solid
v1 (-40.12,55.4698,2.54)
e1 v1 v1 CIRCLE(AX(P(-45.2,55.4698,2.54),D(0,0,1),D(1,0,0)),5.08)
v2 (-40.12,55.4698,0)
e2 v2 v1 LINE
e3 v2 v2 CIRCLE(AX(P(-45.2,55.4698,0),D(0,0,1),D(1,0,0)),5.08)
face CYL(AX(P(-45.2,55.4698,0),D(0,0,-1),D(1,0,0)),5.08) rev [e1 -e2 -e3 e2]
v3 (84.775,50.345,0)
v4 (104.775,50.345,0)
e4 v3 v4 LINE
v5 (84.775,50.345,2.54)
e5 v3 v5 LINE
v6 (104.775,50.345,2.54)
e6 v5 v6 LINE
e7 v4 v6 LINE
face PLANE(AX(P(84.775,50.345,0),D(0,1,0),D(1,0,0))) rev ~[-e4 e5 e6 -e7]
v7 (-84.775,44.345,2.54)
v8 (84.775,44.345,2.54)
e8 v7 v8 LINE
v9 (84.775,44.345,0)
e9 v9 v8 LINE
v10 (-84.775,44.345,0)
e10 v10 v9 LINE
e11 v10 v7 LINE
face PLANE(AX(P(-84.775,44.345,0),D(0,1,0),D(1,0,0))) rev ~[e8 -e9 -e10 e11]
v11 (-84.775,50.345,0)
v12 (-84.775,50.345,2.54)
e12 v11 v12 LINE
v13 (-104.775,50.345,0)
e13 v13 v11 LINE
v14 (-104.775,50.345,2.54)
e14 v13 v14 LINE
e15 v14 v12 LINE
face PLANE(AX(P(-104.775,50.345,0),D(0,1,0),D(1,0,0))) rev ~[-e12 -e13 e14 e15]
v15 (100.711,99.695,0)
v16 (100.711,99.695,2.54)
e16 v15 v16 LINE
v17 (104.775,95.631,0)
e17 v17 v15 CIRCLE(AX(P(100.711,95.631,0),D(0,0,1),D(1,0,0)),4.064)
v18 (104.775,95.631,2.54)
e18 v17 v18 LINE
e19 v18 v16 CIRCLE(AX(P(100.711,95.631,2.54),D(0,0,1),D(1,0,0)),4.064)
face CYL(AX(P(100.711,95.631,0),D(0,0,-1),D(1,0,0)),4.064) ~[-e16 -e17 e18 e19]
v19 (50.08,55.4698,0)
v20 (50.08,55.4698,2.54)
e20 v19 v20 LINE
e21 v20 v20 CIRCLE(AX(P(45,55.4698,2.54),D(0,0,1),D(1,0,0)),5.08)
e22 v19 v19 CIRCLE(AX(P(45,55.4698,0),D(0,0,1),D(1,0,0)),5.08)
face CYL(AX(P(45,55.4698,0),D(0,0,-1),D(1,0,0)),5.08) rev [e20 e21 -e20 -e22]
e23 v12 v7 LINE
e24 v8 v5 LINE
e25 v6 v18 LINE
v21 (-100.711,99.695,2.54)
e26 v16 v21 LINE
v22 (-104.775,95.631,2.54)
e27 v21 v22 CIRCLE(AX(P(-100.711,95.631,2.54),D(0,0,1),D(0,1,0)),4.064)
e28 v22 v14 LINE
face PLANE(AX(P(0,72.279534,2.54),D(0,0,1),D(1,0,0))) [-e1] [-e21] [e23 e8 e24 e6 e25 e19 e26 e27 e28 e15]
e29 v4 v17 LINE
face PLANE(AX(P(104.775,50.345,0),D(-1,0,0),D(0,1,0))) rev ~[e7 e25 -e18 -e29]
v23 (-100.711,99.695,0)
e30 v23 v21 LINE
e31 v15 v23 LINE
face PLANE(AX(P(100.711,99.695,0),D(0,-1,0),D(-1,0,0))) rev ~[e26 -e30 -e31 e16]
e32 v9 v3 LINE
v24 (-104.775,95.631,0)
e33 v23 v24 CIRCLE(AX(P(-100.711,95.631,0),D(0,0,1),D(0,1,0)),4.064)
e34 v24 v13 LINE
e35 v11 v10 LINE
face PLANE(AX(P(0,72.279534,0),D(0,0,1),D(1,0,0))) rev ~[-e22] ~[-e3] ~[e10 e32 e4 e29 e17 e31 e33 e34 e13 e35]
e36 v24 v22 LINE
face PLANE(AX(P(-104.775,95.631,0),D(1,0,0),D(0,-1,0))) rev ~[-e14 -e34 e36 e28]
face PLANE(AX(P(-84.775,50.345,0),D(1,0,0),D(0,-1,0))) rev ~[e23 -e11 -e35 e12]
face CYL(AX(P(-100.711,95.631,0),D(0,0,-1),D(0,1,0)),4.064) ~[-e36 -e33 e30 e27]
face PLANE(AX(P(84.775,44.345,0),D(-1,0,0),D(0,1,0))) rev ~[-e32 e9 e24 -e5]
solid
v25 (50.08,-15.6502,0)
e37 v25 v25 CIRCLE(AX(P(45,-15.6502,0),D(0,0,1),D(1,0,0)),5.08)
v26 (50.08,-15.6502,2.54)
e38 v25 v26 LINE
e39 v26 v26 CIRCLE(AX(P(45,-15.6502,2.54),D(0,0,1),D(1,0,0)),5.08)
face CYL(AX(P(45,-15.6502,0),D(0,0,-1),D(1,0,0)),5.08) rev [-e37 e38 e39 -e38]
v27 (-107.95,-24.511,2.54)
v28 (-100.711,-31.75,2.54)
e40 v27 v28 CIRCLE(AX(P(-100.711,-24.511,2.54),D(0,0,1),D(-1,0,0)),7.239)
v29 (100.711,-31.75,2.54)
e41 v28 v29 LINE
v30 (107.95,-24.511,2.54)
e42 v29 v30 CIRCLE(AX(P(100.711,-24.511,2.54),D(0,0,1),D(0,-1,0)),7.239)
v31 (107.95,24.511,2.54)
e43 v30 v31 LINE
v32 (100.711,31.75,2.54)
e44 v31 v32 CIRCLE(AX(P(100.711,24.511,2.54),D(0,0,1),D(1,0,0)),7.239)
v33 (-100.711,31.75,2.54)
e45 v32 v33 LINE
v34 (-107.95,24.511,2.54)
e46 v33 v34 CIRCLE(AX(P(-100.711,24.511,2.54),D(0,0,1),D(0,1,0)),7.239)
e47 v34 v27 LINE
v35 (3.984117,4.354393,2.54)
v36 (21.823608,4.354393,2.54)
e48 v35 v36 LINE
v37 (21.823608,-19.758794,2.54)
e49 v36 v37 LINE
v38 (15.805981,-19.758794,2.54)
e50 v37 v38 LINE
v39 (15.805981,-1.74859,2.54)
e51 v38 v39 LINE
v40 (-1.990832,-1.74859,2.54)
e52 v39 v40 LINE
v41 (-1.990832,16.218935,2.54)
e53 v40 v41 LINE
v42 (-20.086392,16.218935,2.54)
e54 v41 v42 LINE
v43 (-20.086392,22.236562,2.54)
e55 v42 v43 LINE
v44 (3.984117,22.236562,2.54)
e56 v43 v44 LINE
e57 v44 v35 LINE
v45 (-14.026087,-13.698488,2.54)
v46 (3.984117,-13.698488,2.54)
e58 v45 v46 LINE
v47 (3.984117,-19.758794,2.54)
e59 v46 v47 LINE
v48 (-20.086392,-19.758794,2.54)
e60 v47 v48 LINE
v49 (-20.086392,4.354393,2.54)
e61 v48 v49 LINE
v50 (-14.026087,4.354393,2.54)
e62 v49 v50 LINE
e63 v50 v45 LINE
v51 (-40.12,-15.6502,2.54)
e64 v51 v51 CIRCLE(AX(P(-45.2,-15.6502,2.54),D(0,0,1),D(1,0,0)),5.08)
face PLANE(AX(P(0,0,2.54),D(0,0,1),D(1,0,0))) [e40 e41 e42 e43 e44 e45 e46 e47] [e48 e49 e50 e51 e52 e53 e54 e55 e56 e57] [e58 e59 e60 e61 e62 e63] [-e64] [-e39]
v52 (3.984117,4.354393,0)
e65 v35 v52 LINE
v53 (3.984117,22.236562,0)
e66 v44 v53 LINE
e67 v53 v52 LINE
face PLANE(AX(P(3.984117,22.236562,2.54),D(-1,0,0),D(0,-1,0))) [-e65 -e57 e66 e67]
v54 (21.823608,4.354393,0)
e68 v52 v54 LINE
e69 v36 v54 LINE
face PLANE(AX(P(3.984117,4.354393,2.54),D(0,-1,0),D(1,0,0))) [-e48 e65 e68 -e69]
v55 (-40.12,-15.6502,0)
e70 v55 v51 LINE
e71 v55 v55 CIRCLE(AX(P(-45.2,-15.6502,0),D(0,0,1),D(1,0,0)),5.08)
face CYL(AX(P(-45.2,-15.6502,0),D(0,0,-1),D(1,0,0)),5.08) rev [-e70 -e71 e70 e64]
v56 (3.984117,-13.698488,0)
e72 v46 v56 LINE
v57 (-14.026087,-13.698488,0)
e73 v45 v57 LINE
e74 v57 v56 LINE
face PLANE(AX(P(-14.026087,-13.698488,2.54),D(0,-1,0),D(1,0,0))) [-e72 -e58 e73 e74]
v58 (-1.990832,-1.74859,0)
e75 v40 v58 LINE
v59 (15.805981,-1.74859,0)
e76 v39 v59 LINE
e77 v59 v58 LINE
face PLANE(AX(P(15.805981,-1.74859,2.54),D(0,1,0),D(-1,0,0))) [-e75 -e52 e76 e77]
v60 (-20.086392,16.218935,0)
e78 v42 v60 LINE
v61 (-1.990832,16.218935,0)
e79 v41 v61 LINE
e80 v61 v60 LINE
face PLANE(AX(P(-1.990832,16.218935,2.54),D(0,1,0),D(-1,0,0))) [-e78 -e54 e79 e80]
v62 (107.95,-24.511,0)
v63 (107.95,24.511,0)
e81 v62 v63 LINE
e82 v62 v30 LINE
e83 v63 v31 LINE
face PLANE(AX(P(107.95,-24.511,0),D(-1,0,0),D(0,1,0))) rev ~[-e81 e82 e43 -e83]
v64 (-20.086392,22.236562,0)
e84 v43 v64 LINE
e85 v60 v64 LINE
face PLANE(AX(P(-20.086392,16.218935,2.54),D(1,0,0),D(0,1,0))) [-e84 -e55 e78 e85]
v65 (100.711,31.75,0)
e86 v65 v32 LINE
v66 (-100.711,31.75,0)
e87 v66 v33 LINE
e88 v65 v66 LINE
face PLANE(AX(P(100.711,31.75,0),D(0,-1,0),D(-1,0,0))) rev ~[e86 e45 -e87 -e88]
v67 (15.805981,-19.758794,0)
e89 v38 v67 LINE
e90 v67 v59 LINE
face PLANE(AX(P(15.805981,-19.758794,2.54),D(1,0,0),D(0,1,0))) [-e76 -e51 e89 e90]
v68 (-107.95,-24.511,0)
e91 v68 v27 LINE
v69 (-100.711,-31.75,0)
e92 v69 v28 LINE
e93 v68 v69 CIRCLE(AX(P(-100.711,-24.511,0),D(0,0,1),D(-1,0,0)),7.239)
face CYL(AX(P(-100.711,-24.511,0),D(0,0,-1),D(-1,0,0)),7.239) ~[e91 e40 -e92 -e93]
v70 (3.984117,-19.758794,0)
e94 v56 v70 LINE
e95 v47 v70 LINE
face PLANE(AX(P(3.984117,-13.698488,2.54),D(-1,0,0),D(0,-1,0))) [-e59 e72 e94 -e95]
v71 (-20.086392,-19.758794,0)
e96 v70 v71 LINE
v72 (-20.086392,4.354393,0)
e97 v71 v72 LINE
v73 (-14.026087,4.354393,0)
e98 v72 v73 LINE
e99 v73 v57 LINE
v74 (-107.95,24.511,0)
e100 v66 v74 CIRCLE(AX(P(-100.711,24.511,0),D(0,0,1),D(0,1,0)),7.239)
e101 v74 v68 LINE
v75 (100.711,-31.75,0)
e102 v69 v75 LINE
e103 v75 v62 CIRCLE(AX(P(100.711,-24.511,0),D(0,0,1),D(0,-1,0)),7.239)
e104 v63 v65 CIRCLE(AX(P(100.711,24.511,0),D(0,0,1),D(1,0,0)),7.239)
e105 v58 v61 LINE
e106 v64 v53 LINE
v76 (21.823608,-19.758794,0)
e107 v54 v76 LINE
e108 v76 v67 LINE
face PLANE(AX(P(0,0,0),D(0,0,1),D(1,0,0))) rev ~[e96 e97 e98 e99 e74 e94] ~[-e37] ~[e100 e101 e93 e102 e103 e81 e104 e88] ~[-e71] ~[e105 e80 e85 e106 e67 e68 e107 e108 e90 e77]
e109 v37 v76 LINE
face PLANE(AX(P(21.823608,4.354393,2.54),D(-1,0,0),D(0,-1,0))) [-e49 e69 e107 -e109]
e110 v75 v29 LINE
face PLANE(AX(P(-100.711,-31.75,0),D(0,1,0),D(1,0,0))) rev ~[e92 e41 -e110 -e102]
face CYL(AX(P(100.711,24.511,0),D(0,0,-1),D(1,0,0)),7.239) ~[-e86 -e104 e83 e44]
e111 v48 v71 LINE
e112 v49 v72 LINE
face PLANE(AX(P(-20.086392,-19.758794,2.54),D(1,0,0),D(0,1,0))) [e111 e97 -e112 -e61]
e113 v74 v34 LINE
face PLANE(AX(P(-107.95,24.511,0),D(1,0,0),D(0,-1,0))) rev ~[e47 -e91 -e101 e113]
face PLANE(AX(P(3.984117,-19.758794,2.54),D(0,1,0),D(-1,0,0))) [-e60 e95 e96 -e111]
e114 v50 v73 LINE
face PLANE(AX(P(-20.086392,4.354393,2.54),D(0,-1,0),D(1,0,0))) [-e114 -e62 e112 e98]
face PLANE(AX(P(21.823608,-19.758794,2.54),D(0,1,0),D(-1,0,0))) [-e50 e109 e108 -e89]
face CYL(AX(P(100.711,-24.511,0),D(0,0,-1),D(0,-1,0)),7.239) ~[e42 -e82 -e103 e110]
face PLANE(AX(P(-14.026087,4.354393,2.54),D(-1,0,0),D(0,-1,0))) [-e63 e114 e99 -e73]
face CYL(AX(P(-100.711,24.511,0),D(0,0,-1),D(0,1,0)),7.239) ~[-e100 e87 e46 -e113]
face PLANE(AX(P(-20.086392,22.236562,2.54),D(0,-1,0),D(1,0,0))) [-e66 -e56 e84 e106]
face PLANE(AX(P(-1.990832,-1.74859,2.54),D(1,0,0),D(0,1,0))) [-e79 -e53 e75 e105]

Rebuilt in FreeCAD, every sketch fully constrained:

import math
import FreeCAD as App
import Part
import Sketcher

V = App.Vector
Q = App.Units.Quantity

doc = App.newDocument("Part")
params = doc.addObject("Spreadsheet::Sheet", "Params")
for row, (alias, value) in enumerate([
    ("sketch1_diameter", "0.4 in"),
    ("sketch1_radius", "0.285 in"),
    ("sketch1_width", "7.93 in"),
    ("sketch1_height", "1.93 in"),
    ("pad1_length", "0.1 in"),
    ("sketch3_diameter", "0.4 in"),
    ("sketch3_radius", "0.16 in"),
    ("sketch3_width", "7.93 in"),
    ("pad2_length", "0.1 in"),
], start=1):
    params.set(f"A{row}", alias)
    params.set(f"B{row}", "=" + value)
    params.setAlias(f"B{row}", alias)

body = doc.addObject("PartDesign::Body", "Body")

# Sketch on XY plane
sketch1 = body.newObject("Sketcher::SketchObject", "Sketch")
sketch1.AttachmentSupport = (doc.getObject("XY_Plane"), [""])
sketch1.MapMode = "FlatFace"
sketch1.addGeometry([
    Part.ArcOfCircle(Part.Circle(V(101, -25, 0), V(0, 0, 1), 7), math.radians(-90), math.radians(0)),  # 0
    Part.LineSegment(V(108, -25, 0), V(108, 25, 0)),  # 1
    Part.ArcOfCircle(Part.Circle(V(101, 25, 0), V(0, 0, 1), 7), math.radians(0), math.radians(90)),  # 2
    Part.LineSegment(V(101, 32, 0), V(-101, 32, 0)),  # 3
    Part.ArcOfCircle(Part.Circle(V(-101, 25, 0), V(0, 0, 1), 7), math.radians(90), math.radians(180)),  # 4
    Part.LineSegment(V(-108, 25, 0), V(-108, -25, 0)),  # 5
    Part.ArcOfCircle(Part.Circle(V(-101, -25, 0), V(0, 0, 1), 7), math.radians(180), math.radians(270)),  # 6
    Part.LineSegment(V(-101, -32, 0), V(101, -32, 0)),  # 7
    Part.Circle(V(-45, -16, 0), V(0, 0, 1), 5),  # 8
    Part.Circle(V(45, -16, 0), V(0, 0, 1), 5),  # 9
], False)
sketch1.addConstraint([
    Sketcher.Constraint("Tangent", 0, 2, 1, 1),
    Sketcher.Constraint("Tangent", 1, 2, 2, 1),
    Sketcher.Constraint("Tangent", 2, 2, 3, 1),
    Sketcher.Constraint("Tangent", 3, 2, 4, 1),
    Sketcher.Constraint("Tangent", 4, 2, 5, 1),
    Sketcher.Constraint("Tangent", 5, 2, 6, 1),
    Sketcher.Constraint("Tangent", 6, 2, 7, 1),
    Sketcher.Constraint("Tangent", 7, 2, 0, 1),
    Sketcher.Constraint("Vertical", 1),
    Sketcher.Constraint("Horizontal", 3),
    Sketcher.Constraint("Vertical", 5),
    Sketcher.Constraint("Horizontal", 7),
    Sketcher.Constraint("Equal", 0, 2),
    Sketcher.Constraint("Equal", 2, 4),
    Sketcher.Constraint("Equal", 4, 6),
    Sketcher.Constraint("Equal", 8, 9),
    Sketcher.Constraint("Symmetric", 0, 3, 4, 3, -1, 1),
    Sketcher.Constraint("Horizontal", 8, 3, 9, 3),
    Sketcher.Constraint("Diameter", 8, Q("0.4 in")),
    Sketcher.Constraint("Radius", 0, Q("0.285 in")),
    Sketcher.Constraint("DistanceX", 3, 2, 3, 1, Q("7.93 in")),
    Sketcher.Constraint("DistanceY", 1, 1, 1, 2, Q("1.93 in")),
    Sketcher.Constraint("DistanceX", 8, 3, -1, 1, Q("45.2 mm")),
    Sketcher.Constraint("DistanceY", 8, 3, -1, 1, Q("15.6502 mm")),
    Sketcher.Constraint("DistanceX", -1, 1, 9, 3, Q("45 mm")),
])
sketch1.setExpression("Constraints[18]", "Params.sketch1_diameter")
sketch1.setExpression("Constraints[19]", "Params.sketch1_radius")
sketch1.setExpression("Constraints[20]", "Params.sketch1_width")
sketch1.setExpression("Constraints[21]", "Params.sketch1_height")
pad1 = body.newObject("PartDesign::Pad", "Pad")
pad1.Profile = sketch1
pad1.setExpression("Length", "Params.pad1_length")

# Sketch on XY plane
sketch2 = body.newObject("Sketcher::SketchObject", "Sketch001")
sketch2.AttachmentSupport = (doc.getObject("XY_Plane"), [""])
sketch2.MapMode = "FlatFace"
sketch2.AttachmentOffset = App.Placement(V(0, 0, 0.1 * 25.4), App.Rotation())
sketch2.addGeometry([
    Part.LineSegment(V(4, 22, 0), V(-20, 22, 0)),  # 0
    Part.LineSegment(V(-20, 22, 0), V(-20, 16, 0)),  # 1
    Part.LineSegment(V(-20, 16, 0), V(-2, 16, 0)),  # 2
    Part.LineSegment(V(-2, 16, 0), V(-2, -2, 0)),  # 3
    Part.LineSegment(V(-2, -2, 0), V(16, -2, 0)),  # 4
    Part.LineSegment(V(16, -2, 0), V(16, -20, 0)),  # 5
    Part.LineSegment(V(16, -20, 0), V(22, -20, 0)),  # 6
    Part.LineSegment(V(22, -20, 0), V(22, 4, 0)),  # 7
    Part.LineSegment(V(22, 4, 0), V(4, 4, 0)),  # 8
    Part.LineSegment(V(4, 4, 0), V(4, 22, 0)),  # 9
    Part.LineSegment(V(-14, 4, 0), V(-20, 4, 0)),  # 10
    Part.LineSegment(V(-20, 4, 0), V(-20, -20, 0)),  # 11
    Part.LineSegment(V(-20, -20, 0), V(4, -20, 0)),  # 12
    Part.LineSegment(V(4, -20, 0), V(4, -14, 0)),  # 13
    Part.LineSegment(V(4, -14, 0), V(-14, -14, 0)),  # 14
    Part.LineSegment(V(-14, -14, 0), V(-14, 4, 0)),  # 15
], False)
sketch2.addConstraint([
    Sketcher.Constraint("Coincident", 0, 2, 1, 1),
    Sketcher.Constraint("Coincident", 1, 2, 2, 1),
    Sketcher.Constraint("Coincident", 2, 2, 3, 1),
    Sketcher.Constraint("Coincident", 3, 2, 4, 1),
    Sketcher.Constraint("Coincident", 4, 2, 5, 1),
    Sketcher.Constraint("Coincident", 5, 2, 6, 1),
    Sketcher.Constraint("Coincident", 6, 2, 7, 1),
    Sketcher.Constraint("Coincident", 7, 2, 8, 1),
    Sketcher.Constraint("Coincident", 8, 2, 9, 1),
    Sketcher.Constraint("Coincident", 9, 2, 0, 1),
    Sketcher.Constraint("Coincident", 10, 2, 11, 1),
    Sketcher.Constraint("Coincident", 11, 2, 12, 1),
    Sketcher.Constraint("Coincident", 12, 2, 13, 1),
    Sketcher.Constraint("Coincident", 13, 2, 14, 1),
    Sketcher.Constraint("Coincident", 14, 2, 15, 1),
    Sketcher.Constraint("Coincident", 15, 2, 10, 1),
    Sketcher.Constraint("Horizontal", 0),
    Sketcher.Constraint("Vertical", 1),
    Sketcher.Constraint("Horizontal", 2),
    Sketcher.Constraint("Vertical", 3),
    Sketcher.Constraint("Horizontal", 4),
    Sketcher.Constraint("Vertical", 5),
    Sketcher.Constraint("Horizontal", 6),
    Sketcher.Constraint("Vertical", 7),
    Sketcher.Constraint("Horizontal", 8),
    Sketcher.Constraint("Vertical", 9),
    Sketcher.Constraint("Horizontal", 10),
    Sketcher.Constraint("Vertical", 11),
    Sketcher.Constraint("Horizontal", 12),
    Sketcher.Constraint("Vertical", 13),
    Sketcher.Constraint("Horizontal", 14),
    Sketcher.Constraint("Vertical", 15),
    Sketcher.Constraint("Horizontal", 8, 2, 10, 2),
    Sketcher.Constraint("Horizontal", 6, 2, 11, 2),
    Sketcher.Constraint("Vertical", 1, 2, 10, 2),
    Sketcher.Constraint("Vertical", 9, 2, 12, 2),
    Sketcher.Constraint("Equal", 6, 1),
    Sketcher.Constraint("Equal", 14, 5),
    Sketcher.Constraint("Equal", 10, 13),
    Sketcher.Constraint("DistanceX", 1, 2, 6, 2, Q("1.65 in")),
    Sketcher.Constraint("DistanceX", 0, 2, 0, 1, Q("24.070509 mm")),
    Sketcher.Constraint("DistanceX", 2, 1, 2, 2, Q("18.09556 mm")),
    Sketcher.Constraint("DistanceY", 9, 1, 9, 2, Q("17.882169 mm")),
    Sketcher.Constraint("DistanceY", 15, 1, 15, 2, Q("18.052882 mm")),
    Sketcher.Constraint("DistanceY", 13, 2, 3, 2, Q("11.949898 mm")),
    Sketcher.Constraint("DistanceX", 4, 1, 4, 2, Q("17.796813 mm")),
    Sketcher.Constraint("DistanceY", 3, 2, -1, 1, Q("1.74859 mm")),
    Sketcher.Constraint("DistanceX", -1, 1, 4, 2, Q("15.805981 mm")),
])
pocket1 = body.newObject("PartDesign::Pocket", "Pocket")
pocket1.Profile = sketch2
pocket1.Type = "ThroughAll"
body2 = doc.addObject("PartDesign::Body", "Body001")

# Sketch on XY plane
sketch3 = body2.newObject("Sketcher::SketchObject", "Sketch002")
sketch3.AttachmentSupport = (doc.getObject("XY_Plane001"), [""])
sketch3.MapMode = "FlatFace"
sketch3.addGeometry([
    Part.LineSegment(V(100.7, 99.7, 0), V(-100.7, 99.7, 0)),  # 0
    Part.ArcOfCircle(Part.Circle(V(-100.7, 95.6, 0), V(0, 0, 1), 4.1), math.radians(90), math.radians(180)),  # 1
    Part.LineSegment(V(-104.8, 95.6, 0), V(-104.8, 50.3, 0)),  # 2
    Part.LineSegment(V(-104.8, 50.3, 0), V(-84.8, 50.3, 0)),  # 3
    Part.LineSegment(V(-84.8, 50.3, 0), V(-84.8, 44.3, 0)),  # 4
    Part.LineSegment(V(-84.8, 44.3, 0), V(84.8, 44.3, 0)),  # 5
    Part.LineSegment(V(84.8, 44.3, 0), V(84.8, 50.3, 0)),  # 6
    Part.LineSegment(V(84.8, 50.3, 0), V(104.8, 50.3, 0)),  # 7
    Part.LineSegment(V(104.8, 50.3, 0), V(104.8, 95.6, 0)),  # 8
    Part.ArcOfCircle(Part.Circle(V(100.7, 95.6, 0), V(0, 0, 1), 4.1), math.radians(0), math.radians(90)),  # 9
    Part.Circle(V(-45.2, 55.5, 0), V(0, 0, 1), 5.1),  # 10
    Part.Circle(V(45, 55.5, 0), V(0, 0, 1), 5.1),  # 11
], False)
sketch3.addConstraint([
    Sketcher.Constraint("Tangent", 0, 2, 1, 1),
    Sketcher.Constraint("Tangent", 1, 2, 2, 1),
    Sketcher.Constraint("Coincident", 2, 2, 3, 1),
    Sketcher.Constraint("Coincident", 3, 2, 4, 1),
    Sketcher.Constraint("Coincident", 4, 2, 5, 1),
    Sketcher.Constraint("Coincident", 5, 2, 6, 1),
    Sketcher.Constraint("Coincident", 6, 2, 7, 1),
    Sketcher.Constraint("Coincident", 7, 2, 8, 1),
    Sketcher.Constraint("Tangent", 8, 2, 9, 1),
    Sketcher.Constraint("Tangent", 9, 2, 0, 1),
    Sketcher.Constraint("Horizontal", 0),
    Sketcher.Constraint("Vertical", 2),
    Sketcher.Constraint("Horizontal", 3),
    Sketcher.Constraint("Vertical", 4),
    Sketcher.Constraint("Horizontal", 5),
    Sketcher.Constraint("Vertical", 6),
    Sketcher.Constraint("Horizontal", 7),
    Sketcher.Constraint("Vertical", 8),
    Sketcher.Constraint("Equal", 1, 9),
    Sketcher.Constraint("Equal", 10, 11),
    Sketcher.Constraint("Symmetric", 3, 2, 6, 2, -2),
    Sketcher.Constraint("Horizontal", 10, 3, 11, 3),
    Sketcher.Constraint("Equal", 3, 7),
    Sketcher.Constraint("Diameter", 10, Q("0.4 in")),
    Sketcher.Constraint("Radius", 1, Q("0.16 in")),
    Sketcher.Constraint("DistanceX", 0, 2, 0, 1, Q("7.93 in")),
    Sketcher.Constraint("DistanceY", -1, 1, 1, 3, Q("3.765 in")),
    Sketcher.Constraint("DistanceX", 3, 1, 3, 2, Q("20 mm")),
    Sketcher.Constraint("DistanceY", 2, 2, 2, 1, Q("45.286 mm")),
    Sketcher.Constraint("DistanceY", 4, 2, 4, 1, Q("6 mm")),
    Sketcher.Constraint("DistanceX", 10, 3, -1, 1, Q("45.2 mm")),
    Sketcher.Constraint("DistanceY", -1, 1, 10, 3, Q("55.4698 mm")),
    Sketcher.Constraint("DistanceX", -1, 1, 11, 3, Q("45 mm")),
])
sketch3.setExpression("Constraints[23]", "Params.sketch3_diameter")
sketch3.setExpression("Constraints[24]", "Params.sketch3_radius")
sketch3.setExpression("Constraints[25]", "Params.sketch3_width")
pad2 = body2.newObject("PartDesign::Pad", "Pad001")
pad2.Profile = sketch3
pad2.setExpression("Length", "Params.pad2_length")

doc.recompute()
